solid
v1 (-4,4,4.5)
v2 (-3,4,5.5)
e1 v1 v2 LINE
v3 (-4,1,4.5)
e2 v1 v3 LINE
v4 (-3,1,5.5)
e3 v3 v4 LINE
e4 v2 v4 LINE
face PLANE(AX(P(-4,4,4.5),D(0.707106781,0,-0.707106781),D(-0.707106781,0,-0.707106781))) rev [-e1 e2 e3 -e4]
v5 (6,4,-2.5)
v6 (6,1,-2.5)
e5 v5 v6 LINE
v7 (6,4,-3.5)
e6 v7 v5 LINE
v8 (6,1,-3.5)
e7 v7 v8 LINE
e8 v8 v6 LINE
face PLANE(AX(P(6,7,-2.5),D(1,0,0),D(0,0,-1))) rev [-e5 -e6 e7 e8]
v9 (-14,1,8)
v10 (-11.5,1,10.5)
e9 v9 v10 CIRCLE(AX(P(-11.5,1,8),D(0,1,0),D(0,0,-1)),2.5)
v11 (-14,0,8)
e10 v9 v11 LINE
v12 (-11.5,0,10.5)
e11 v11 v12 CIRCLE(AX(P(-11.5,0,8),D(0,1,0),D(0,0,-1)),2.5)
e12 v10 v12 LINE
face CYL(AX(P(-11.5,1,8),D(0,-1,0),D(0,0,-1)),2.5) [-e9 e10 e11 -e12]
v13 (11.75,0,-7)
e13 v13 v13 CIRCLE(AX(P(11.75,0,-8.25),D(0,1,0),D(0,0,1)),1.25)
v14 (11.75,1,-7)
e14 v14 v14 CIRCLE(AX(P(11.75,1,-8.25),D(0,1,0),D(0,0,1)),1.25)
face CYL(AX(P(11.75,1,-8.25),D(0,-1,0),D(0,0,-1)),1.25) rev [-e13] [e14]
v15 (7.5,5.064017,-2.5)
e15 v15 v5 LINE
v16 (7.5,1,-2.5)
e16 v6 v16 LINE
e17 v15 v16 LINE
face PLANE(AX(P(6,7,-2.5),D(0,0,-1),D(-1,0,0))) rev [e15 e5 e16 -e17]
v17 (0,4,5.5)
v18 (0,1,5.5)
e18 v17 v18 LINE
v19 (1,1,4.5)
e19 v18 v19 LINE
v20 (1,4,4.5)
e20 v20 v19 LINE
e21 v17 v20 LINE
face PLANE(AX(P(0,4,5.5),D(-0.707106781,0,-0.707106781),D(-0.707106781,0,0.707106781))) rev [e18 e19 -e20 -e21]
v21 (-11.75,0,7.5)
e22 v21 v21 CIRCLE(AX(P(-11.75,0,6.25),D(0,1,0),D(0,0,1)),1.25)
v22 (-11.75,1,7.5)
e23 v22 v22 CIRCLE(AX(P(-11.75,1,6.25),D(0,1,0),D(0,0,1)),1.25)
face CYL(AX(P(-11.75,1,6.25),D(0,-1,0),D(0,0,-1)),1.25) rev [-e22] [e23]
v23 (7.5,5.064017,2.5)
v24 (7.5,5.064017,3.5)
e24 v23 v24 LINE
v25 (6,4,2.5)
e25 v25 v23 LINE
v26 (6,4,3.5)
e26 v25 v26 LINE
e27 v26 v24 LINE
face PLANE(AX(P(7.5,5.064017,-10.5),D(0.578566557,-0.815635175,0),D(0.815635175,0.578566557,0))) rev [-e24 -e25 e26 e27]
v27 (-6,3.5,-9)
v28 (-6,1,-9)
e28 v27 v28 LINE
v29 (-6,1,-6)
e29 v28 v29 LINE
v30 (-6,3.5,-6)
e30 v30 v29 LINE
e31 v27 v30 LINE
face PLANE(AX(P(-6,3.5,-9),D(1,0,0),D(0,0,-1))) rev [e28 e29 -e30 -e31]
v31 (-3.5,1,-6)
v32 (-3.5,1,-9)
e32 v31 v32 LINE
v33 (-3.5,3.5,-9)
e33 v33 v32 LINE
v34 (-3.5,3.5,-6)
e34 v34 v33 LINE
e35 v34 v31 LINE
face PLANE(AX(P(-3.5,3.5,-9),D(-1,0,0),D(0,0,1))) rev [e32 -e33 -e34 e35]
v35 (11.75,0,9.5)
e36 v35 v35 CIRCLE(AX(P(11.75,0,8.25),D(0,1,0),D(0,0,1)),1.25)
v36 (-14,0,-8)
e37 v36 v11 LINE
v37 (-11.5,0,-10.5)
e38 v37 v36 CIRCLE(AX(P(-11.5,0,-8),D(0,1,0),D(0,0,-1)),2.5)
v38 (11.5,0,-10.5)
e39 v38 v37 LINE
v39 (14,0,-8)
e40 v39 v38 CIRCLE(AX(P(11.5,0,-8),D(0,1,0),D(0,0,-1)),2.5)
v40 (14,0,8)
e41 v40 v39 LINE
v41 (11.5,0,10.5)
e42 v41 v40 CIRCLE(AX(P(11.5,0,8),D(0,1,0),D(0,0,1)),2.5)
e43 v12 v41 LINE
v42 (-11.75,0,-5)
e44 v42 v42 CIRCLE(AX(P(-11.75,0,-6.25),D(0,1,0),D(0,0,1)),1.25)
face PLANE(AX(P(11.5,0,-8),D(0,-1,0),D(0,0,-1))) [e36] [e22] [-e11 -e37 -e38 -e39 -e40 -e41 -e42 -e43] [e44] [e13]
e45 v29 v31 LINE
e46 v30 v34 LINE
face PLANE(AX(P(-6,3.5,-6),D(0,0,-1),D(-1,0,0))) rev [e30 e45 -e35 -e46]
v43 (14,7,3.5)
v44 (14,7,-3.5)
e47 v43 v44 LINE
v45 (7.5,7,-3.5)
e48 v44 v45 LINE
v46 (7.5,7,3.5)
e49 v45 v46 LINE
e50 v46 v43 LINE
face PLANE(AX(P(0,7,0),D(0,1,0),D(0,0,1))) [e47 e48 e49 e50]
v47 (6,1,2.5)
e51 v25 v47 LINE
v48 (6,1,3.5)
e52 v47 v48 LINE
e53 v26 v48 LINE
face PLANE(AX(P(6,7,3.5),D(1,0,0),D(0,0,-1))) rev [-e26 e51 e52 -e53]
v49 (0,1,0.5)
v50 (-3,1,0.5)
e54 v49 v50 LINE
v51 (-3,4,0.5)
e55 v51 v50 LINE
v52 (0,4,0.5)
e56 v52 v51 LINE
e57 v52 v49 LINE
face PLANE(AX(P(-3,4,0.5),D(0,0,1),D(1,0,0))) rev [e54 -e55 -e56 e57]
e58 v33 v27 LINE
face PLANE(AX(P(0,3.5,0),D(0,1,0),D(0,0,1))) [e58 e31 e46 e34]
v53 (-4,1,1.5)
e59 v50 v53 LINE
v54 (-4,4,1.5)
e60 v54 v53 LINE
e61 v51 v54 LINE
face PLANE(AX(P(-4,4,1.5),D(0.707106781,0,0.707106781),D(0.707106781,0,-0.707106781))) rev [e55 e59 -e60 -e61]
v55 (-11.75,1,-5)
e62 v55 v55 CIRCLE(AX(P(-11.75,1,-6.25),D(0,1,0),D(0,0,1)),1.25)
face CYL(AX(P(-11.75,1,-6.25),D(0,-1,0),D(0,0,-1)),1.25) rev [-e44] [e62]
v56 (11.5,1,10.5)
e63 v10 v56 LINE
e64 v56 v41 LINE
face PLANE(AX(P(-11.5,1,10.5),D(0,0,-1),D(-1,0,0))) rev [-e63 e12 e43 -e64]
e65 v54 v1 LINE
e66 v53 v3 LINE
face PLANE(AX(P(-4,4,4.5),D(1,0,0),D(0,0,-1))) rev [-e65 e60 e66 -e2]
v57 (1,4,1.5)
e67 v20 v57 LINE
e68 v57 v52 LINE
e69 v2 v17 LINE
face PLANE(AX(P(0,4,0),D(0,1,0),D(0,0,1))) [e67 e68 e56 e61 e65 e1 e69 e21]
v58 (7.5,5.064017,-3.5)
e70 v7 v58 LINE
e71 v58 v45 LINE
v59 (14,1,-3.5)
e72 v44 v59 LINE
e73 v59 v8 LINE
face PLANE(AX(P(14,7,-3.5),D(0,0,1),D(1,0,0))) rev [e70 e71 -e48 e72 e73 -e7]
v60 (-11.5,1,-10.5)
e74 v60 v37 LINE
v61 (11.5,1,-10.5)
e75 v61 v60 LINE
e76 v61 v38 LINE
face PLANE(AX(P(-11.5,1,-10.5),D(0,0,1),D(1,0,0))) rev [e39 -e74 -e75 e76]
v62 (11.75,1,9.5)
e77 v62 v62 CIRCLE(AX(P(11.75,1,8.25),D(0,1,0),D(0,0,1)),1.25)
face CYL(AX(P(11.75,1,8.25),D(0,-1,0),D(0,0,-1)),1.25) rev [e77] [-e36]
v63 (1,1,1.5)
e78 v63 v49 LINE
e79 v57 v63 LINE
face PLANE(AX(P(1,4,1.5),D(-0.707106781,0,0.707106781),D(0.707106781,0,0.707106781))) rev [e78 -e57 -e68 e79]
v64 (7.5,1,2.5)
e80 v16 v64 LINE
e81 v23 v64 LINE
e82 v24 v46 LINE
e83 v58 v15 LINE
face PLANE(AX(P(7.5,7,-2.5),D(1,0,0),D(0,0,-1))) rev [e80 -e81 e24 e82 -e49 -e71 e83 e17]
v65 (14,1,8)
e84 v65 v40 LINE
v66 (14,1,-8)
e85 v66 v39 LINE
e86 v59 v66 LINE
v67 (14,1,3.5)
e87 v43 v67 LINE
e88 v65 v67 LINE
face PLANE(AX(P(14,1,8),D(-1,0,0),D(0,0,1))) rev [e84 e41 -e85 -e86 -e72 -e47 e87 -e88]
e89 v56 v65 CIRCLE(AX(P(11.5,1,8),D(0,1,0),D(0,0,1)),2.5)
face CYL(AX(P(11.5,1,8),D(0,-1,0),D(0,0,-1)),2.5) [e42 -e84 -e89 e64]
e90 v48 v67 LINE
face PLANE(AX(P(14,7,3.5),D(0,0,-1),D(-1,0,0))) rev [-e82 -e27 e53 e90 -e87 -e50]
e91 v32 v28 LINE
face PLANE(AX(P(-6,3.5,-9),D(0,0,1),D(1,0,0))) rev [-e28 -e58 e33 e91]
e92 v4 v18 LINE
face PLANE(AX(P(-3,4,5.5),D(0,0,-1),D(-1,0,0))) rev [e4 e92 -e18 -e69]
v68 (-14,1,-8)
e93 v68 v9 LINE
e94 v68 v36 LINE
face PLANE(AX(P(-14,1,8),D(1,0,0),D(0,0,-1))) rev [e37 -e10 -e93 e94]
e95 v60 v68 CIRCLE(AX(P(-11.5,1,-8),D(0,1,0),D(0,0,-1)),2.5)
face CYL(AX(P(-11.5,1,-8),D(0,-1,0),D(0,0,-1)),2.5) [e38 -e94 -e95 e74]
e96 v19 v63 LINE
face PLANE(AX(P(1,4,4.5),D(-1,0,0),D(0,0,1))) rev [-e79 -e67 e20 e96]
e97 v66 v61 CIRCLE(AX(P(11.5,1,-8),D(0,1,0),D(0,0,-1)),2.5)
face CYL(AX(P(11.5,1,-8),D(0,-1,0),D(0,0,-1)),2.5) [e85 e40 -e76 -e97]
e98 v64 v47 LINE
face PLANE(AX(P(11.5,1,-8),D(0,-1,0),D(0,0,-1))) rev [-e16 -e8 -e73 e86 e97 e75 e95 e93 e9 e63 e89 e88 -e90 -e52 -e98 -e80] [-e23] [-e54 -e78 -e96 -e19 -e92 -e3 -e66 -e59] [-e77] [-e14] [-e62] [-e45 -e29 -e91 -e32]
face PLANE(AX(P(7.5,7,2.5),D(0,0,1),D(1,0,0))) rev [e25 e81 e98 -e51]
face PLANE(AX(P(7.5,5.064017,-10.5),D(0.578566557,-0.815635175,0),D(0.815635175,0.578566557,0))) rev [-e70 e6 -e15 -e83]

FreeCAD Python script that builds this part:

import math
import FreeCAD as App
import Part
import Sketcher
from FreeCAD import Vector


def add_polygon(sketch, points):
    """Adds a closed chain of lines whose ends are joined by coincident constraints."""
    first, n = sketch.GeometryCount, len(points)
    for a, b in zip(points, points[1:] + points[:1]):
        sketch.addGeometry(Part.LineSegment(App.Vector(*a, 0), App.Vector(*b, 0)), False)
    for i in range(n):
        sketch.addConstraint(Sketcher.Constraint("Coincident", first + i, 2, first + (i + 1) % n, 1))

doc = App.newDocument("Part")
body = doc.addObject("PartDesign::Body", "Body")

sketch1 = body.newObject("Sketcher::SketchObject", "Sketch")
sketch1.AttachmentSupport = (doc.getObject("XZ_Plane"), [""])
sketch1.MapMode = "FlatFace"
sketch1.addGeometry([
    Part.LineSegment(Vector(-11.5, 10.5, 0), Vector(11.5, 10.5, 0)),
    Part.ArcOfCircle(Part.Circle(Vector(11.5, 8, 0), Vector(0, 0, 1), 2.5), math.radians(0), math.radians(90)),
    Part.LineSegment(Vector(14, 8, 0), Vector(14, -8, 0)),
    Part.ArcOfCircle(Part.Circle(Vector(11.5, -8, 0), Vector(0, 0, 1), 2.5), math.radians(-90), math.radians(0)),
    Part.LineSegment(Vector(11.5, -10.5, 0), Vector(-11.5, -10.5, 0)),
    Part.ArcOfCircle(Part.Circle(Vector(-11.5, -8, 0), Vector(0, 0, 1), 2.5), math.radians(180), math.radians(270)),
    Part.LineSegment(Vector(-14, -8, 0), Vector(-14, 8, 0)),
    Part.ArcOfCircle(Part.Circle(Vector(-11.5, 8, 0), Vector(0, 0, 1), 2.5), math.radians(90), math.radians(180)),
    Part.Circle(Vector(-11.75, 6.25, 0), Vector(0, 0, 1), 1.25),
    Part.Circle(Vector(11.75, 8.25, 0), Vector(0, 0, 1), 1.25),
    Part.Circle(Vector(-11.75, -6.25, 0), Vector(0, 0, 1), 1.25),
    Part.Circle(Vector(11.75, -8.25, 0), Vector(0, 0, 1), 1.25),
], False)
sketch1.addConstraint([
    Sketcher.Constraint("Tangent", 0, 2, 1, 2),
    Sketcher.Constraint("Tangent", 1, 1, 2, 1),
    Sketcher.Constraint("Tangent", 2, 2, 3, 2),
    Sketcher.Constraint("Tangent", 3, 1, 4, 1),
    Sketcher.Constraint("Tangent", 4, 2, 5, 2),
    Sketcher.Constraint("Tangent", 5, 1, 6, 1),
    Sketcher.Constraint("Tangent", 6, 2, 7, 2),
    Sketcher.Constraint("Tangent", 7, 1, 0, 1),
    Sketcher.Constraint("Horizontal", 0),
    Sketcher.Constraint("Vertical", 2),
    Sketcher.Constraint("Horizontal", 4),
    Sketcher.Constraint("Vertical", 6),
    Sketcher.Constraint("Equal", 1, 3),
    Sketcher.Constraint("Equal", 3, 5),
    Sketcher.Constraint("Equal", 5, 7),
    Sketcher.Constraint("Equal", 8, 9),
    Sketcher.Constraint("Equal", 9, 10),
    Sketcher.Constraint("Equal", 10, 11),
    Sketcher.Constraint("Symmetric", 1, 3, 5, 3, -1, 1),
    Sketcher.Constraint("Symmetric", 8, 3, 10, 3, -1),
    Sketcher.Constraint("Symmetric", 9, 3, 11, 3, -1),
    Sketcher.Constraint("Diameter", 8, 2.5),
    Sketcher.Constraint("Radius", 1, 2.5),
    Sketcher.Constraint("DistanceX", 0, 1, 0, 2, 23.0),
    Sketcher.Constraint("DistanceY", 2, 2, 2, 1, 16.0),
    Sketcher.Constraint("DistanceY", 8, 3, 9, 3, 2.0),
    Sketcher.Constraint("DistanceX", 8, 3, 9, 3, 23.5),
    Sketcher.Constraint("DistanceY", 10, 3, 8, 3, 12.5),
    Sketcher.Constraint("DistanceX", 8, 3, -1, 1, 11.75),
])
pad1 = body.newObject("PartDesign::Pad", "Pad")
pad1.Profile = sketch1
pad1.Length = 1
pad1.Reversed = True

sketch2 = body.newObject("Sketcher::SketchObject", "Sketch001")
sketch2.AttachmentSupport = (doc.getObject("XZ_Plane"), [""])
sketch2.MapMode = "FlatFace"
sketch2.AttachmentOffset = App.Placement(Vector(0, 0, -1), App.Rotation())
add_polygon(sketch2, [(6, 3.5), (14, 3.5), (14, -3.5), (6, -3.5), (6, -2.5), (7.5, -2.5), (7.5, 2.5), (6, 2.5)])
sketch2.addConstraint([
    Sketcher.Constraint("Horizontal", 0),
    Sketcher.Constraint("Vertical", 1),
    Sketcher.Constraint("Horizontal", 2),
    Sketcher.Constraint("Vertical", 3),
    Sketcher.Constraint("Horizontal", 4),
    Sketcher.Constraint("Vertical", 5),
    Sketcher.Constraint("Horizontal", 6),
    Sketcher.Constraint("Vertical", 7),
    Sketcher.Constraint("Symmetric", 3, 2, 6, 2, -1),
    Sketcher.Constraint("Equal", 3, 7),
    Sketcher.Constraint("DistanceX", 0, 1, 0, 2, 8.0),
    Sketcher.Constraint("DistanceY", 1, 2, 1, 1, 7.0),
    Sketcher.Constraint("DistanceY", 3, 1, 3, 2, 1.0),
    Sketcher.Constraint("DistanceX", 4, 1, 4, 2, 1.5),
    Sketcher.Constraint("DistanceX", -1, 1, 0, 2, 14.0),
])
pad2 = body.newObject("PartDesign::Pad", "Pad001")
pad2.Profile = sketch2
pad2.Length = 6
pad2.Reversed = True

sketch3 = body.newObject("Sketcher::SketchObject", "Sketch002")
sketch3.AttachmentSupport = (doc.getObject("XY_Plane"), [""])
sketch3.MapMode = "FlatFace"
sketch3.AttachmentOffset = App.Placement(Vector(0, 0, 3.5), App.Rotation())
add_polygon(sketch3, [(7.5, 5.064017), (7.5, 7), (6, 7), (6, 4)])
sketch3.addConstraint([
    Sketcher.Constraint("Vertical", 0),
    Sketcher.Constraint("Horizontal", 1),
    Sketcher.Constraint("Vertical", 2),
    Sketcher.Constraint("DistanceY", 2, 2, 2, 1, 3.0),
    Sketcher.Constraint("DistanceX", 1, 2, 1, 1, 1.5),
    Sketcher.Constraint("DistanceY", -1, 1, 0, 2, 7.0),
    Sketcher.Constraint("DistanceX", -1, 1, 1, 2, 6.0),
    Sketcher.Constraint("DistanceY", 0, 1, 0, 2, 1.935983),
])
pocket1 = body.newObject("PartDesign::Pocket", "Pocket")
pocket1.Profile = sketch3
pocket1.Type = "ThroughAll"

sketch4 = body.newObject("Sketcher::SketchObject", "Sketch003")
sketch4.AttachmentSupport = (doc.getObject("XZ_Plane"), [""])
sketch4.MapMode = "FlatFace"
sketch4.AttachmentOffset = App.Placement(Vector(0, 0, -1), App.Rotation())
add_polygon(sketch4, [(-3, 5.5), (0, 5.5), (1, 4.5), (1, 1.5), (0, 0.5), (-3, 0.5), (-4, 1.5), (-4, 4.5)])
sketch4.addConstraint([
    Sketcher.Constraint("Horizontal", 0),
    Sketcher.Constraint("Vertical", 2),
    Sketcher.Constraint("Horizontal", 4),
    Sketcher.Constraint("Vertical", 6),
    Sketcher.Constraint("PointOnObject", 0, 2, -2),
    Sketcher.Constraint("PointOnObject", 3, 2, -2),
    Sketcher.Constraint("Perpendicular", 1, 3),
    Sketcher.Constraint("Perpendicular", 3, 5),
    Sketcher.Constraint("Perpendicular", 5, 7),
    Sketcher.Constraint("Horizontal", 2, 2, 5, 2),
    Sketcher.Constraint("Horizontal", 1, 2, 6, 2),
    Sketcher.Constraint("Vertical", 4, 2, 7, 2),
    Sketcher.Constraint("Equal", 4, 2),
    Sketcher.Constraint("DistanceX", 0, 1, 0, 2, 3.0),
    Sketcher.Constraint("DistanceX", -1, 1, 1, 2, 1.0),
    Sketcher.Constraint("DistanceY", -1, 1, 0, 2, 5.5),
])
pad3 = body.newObject("PartDesign::Pad", "Pad002")
pad3.Profile = sketch4
pad3.Length = 3
pad3.Reversed = True

sketch5 = body.newObject("Sketcher::SketchObject", "Sketch004")
sketch5.AttachmentSupport = (doc.getObject("XZ_Plane"), [""])
sketch5.MapMode = "FlatFace"
sketch5.AttachmentOffset = App.Placement(Vector(0, 0, -1), App.Rotation())
add_polygon(sketch5, [(-6, -9), (-6, -6), (-3.5, -6), (-3.5, -9)])
sketch5.addConstraint([
    Sketcher.Constraint("Vertical", 0),
    Sketcher.Constraint("Horizontal", 1),
    Sketcher.Constraint("Vertical", 2),
    Sketcher.Constraint("Horizontal", 3),
    Sketcher.Constraint("DistanceY", 0, 1, 0, 2, 3.0),
    Sketcher.Constraint("DistanceX", 1, 1, 1, 2, 2.5),
    Sketcher.Constraint("DistanceX", 0, 2, -1, 1, 6.0),
    Sketcher.Constraint("DistanceY", 0, 2, -1, 1, 6.0),
])
pad4 = body.newObject("PartDesign::Pad", "Pad003")
pad4.Profile = sketch5
pad4.Length = 2.5
pad4.Reversed = True

doc.recompute()
